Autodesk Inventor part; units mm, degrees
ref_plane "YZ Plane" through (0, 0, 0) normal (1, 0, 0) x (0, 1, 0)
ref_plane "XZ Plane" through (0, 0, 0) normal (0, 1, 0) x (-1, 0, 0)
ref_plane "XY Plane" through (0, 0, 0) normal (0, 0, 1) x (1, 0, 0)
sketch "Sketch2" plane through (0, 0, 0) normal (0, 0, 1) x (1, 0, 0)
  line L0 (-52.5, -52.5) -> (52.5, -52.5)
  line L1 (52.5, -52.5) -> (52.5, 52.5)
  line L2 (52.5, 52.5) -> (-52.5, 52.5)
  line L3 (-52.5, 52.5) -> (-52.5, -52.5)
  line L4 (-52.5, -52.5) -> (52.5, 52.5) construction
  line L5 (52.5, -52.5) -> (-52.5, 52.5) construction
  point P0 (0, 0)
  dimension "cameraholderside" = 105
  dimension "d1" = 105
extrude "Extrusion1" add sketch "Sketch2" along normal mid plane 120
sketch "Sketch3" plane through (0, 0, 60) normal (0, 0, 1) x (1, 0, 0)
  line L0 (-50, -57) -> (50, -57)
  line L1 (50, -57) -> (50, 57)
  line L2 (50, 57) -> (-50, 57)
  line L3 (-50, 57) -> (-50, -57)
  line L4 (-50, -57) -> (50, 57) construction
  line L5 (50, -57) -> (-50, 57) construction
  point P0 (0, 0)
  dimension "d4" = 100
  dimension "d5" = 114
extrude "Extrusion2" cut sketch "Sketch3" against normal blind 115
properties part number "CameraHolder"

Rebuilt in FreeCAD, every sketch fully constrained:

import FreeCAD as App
import Part
import Sketcher

doc = App.newDocument("Part")
body = doc.addObject("PartDesign::Body", "Body")

sketch1 = body.newObject("Sketcher::SketchObject", "Sketch")
sketch1.AttachmentSupport = (doc.getObject("XY_Plane"), [""])
sketch1.MapMode = "FlatFace"
sketch1.addGeometry(Part.LineSegment(App.Vector(-52, 52, 0), App.Vector(-52, -52, 0)), False)
sketch1.addGeometry(Part.LineSegment(App.Vector(-52, -52, 0), App.Vector(52, -52, 0)), False)
sketch1.addGeometry(Part.LineSegment(App.Vector(52, -52, 0), App.Vector(52, 52, 0)), False)
sketch1.addGeometry(Part.LineSegment(App.Vector(52, 52, 0), App.Vector(-52, 52, 0)), False)
sketch1.addConstraint(Sketcher.Constraint("Coincident", 0, 2, 1, 1))
sketch1.addConstraint(Sketcher.Constraint("Coincident", 1, 2, 2, 1))
sketch1.addConstraint(Sketcher.Constraint("Coincident", 2, 2, 3, 1))
sketch1.addConstraint(Sketcher.Constraint("Coincident", 3, 2, 0, 1))
sketch1.addConstraint(Sketcher.Constraint("Vertical", 0))
sketch1.addConstraint(Sketcher.Constraint("Horizontal", 1))
sketch1.addConstraint(Sketcher.Constraint("Vertical", 2))
sketch1.addConstraint(Sketcher.Constraint("Horizontal", 3))
sketch1.addConstraint(Sketcher.Constraint("Symmetric", 0, 2, 2, 2, -1, 1))
sketch1.addConstraint(Sketcher.Constraint("Equal", 3, 0))
sketch1.addConstraint(Sketcher.Constraint("DistanceX", 1, 1, 1, 2, 105.0))
pad1 = body.newObject("PartDesign::Pad", "Pad")
pad1.Profile = sketch1
pad1.Length = 120
pad1.Midplane = True

sketch2 = body.newObject("Sketcher::SketchObject", "Sketch001")
sketch2.AttachmentSupport = (doc.getObject("XY_Plane"), [""])
sketch2.MapMode = "FlatFace"
sketch2.AttachmentOffset = App.Placement(App.Vector(0, 0, 60), App.Rotation())
sketch2.addGeometry(Part.LineSegment(App.Vector(-50, 57, 0), App.Vector(-50, -57, 0)), False)
sketch2.addGeometry(Part.LineSegment(App.Vector(-50, -57, 0), App.Vector(50, -57, 0)), False)
sketch2.addGeometry(Part.LineSegment(App.Vector(50, -57, 0), App.Vector(50, 57, 0)), False)
sketch2.addGeometry(Part.LineSegment(App.Vector(50, 57, 0), App.Vector(-50, 57, 0)), False)
sketch2.addConstraint(Sketcher.Constraint("Coincident", 0, 2, 1, 1))
sketch2.addConstraint(Sketcher.Constraint("Coincident", 1, 2, 2, 1))
sketch2.addConstraint(Sketcher.Constraint("Coincident", 2, 2, 3, 1))
sketch2.addConstraint(Sketcher.Constraint("Coincident", 3, 2, 0, 1))
sketch2.addConstraint(Sketcher.Constraint("Vertical", 0))
sketch2.addConstraint(Sketcher.Constraint("Horizontal", 1))
sketch2.addConstraint(Sketcher.Constraint("Vertical", 2))
sketch2.addConstraint(Sketcher.Constraint("Horizontal", 3))
sketch2.addConstraint(Sketcher.Constraint("Symmetric", 0, 2, 2, 2, -1, 1))
sketch2.addConstraint(Sketcher.Constraint("DistanceX", 1, 1, 1, 2, 100.0))
sketch2.addConstraint(Sketcher.Constraint("DistanceY", 0, 2, 0, 1, 114.0))
pocket1 = body.newObject("PartDesign::Pocket", "Pocket")
pocket1.Profile = sketch2
pocket1.Length = 115

doc.recompute()
